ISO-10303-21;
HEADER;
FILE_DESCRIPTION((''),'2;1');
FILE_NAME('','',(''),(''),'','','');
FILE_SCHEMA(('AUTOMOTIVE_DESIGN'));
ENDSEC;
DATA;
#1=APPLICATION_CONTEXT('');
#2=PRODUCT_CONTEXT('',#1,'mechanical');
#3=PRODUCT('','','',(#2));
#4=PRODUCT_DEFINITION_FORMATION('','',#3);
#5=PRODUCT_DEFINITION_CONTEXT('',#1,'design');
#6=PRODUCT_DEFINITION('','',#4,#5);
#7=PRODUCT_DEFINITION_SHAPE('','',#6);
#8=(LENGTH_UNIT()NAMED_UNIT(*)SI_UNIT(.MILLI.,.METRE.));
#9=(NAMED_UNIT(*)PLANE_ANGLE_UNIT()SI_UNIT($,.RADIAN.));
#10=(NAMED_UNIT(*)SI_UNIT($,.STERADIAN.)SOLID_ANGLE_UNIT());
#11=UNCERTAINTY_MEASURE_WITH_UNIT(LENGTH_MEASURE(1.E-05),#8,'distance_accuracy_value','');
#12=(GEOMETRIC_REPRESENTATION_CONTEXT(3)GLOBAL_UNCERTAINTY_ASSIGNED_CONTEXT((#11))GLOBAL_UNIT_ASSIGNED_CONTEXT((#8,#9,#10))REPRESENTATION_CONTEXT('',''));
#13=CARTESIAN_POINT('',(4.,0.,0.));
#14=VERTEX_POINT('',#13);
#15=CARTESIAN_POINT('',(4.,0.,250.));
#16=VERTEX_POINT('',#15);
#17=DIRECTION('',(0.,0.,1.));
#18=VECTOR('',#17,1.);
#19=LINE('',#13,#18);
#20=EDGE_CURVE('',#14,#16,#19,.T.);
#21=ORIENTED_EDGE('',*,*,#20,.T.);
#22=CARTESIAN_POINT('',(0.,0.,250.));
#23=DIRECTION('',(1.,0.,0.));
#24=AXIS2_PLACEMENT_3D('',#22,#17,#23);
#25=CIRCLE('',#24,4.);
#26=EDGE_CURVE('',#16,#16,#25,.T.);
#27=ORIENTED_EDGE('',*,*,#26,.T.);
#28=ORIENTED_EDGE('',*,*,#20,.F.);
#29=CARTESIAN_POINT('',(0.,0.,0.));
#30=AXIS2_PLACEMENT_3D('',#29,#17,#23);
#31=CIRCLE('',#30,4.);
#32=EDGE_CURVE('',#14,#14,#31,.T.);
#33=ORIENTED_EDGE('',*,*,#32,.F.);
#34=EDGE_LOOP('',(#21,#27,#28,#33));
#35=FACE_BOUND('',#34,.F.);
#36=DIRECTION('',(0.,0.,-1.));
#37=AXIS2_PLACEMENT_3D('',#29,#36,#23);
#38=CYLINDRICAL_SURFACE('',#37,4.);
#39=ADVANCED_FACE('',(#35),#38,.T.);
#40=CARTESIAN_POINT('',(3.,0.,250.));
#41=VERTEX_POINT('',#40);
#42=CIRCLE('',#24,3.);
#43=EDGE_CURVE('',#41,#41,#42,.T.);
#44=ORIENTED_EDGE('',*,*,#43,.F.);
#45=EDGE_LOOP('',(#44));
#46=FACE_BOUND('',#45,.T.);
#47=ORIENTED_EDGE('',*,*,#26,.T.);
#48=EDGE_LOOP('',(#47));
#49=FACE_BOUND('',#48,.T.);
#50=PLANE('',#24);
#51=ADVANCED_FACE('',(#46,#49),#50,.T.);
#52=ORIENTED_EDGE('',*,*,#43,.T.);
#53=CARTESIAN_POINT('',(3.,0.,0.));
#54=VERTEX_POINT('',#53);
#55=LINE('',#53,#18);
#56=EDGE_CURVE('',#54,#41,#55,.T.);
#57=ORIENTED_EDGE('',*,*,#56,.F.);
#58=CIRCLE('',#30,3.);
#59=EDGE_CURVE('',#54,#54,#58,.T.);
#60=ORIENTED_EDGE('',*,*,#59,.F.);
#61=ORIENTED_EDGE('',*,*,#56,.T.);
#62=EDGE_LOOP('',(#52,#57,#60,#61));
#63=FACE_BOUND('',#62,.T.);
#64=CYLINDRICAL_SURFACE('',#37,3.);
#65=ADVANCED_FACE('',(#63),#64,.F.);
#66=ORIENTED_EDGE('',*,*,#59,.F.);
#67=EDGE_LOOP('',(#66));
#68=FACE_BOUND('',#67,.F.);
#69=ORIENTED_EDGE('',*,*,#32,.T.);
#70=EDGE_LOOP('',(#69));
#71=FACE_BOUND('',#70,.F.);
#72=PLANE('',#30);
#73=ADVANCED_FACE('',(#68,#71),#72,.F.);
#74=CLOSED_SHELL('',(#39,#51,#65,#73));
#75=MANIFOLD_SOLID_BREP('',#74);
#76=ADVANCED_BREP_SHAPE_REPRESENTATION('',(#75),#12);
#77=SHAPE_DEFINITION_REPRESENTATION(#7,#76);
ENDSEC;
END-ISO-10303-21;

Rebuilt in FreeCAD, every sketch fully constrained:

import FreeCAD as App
import Part
import Sketcher
from FreeCAD import Vector

doc = App.newDocument("Part")
body = doc.addObject("PartDesign::Body", "Body")

sketch1 = body.newObject("Sketcher::SketchObject", "Sketch")
sketch1.AttachmentSupport = (doc.getObject("XY_Plane"), [""])
sketch1.MapMode = "FlatFace"
sketch1.addGeometry([
    Part.Circle(Vector(0, 0, 0), Vector(0, 0, 1), 4),
    Part.Circle(Vector(0, 0, 0), Vector(0, 0, 1), 3),
], False)
sketch1.addConstraint([
    Sketcher.Constraint("Coincident", 0, 3, -1, 1),
    Sketcher.Constraint("Coincident", 1, 3, -1, 1),
    Sketcher.Constraint("Diameter", 0, 8.0),
    Sketcher.Constraint("Diameter", 1, 6.0),
])
pad1 = body.newObject("PartDesign::Pad", "Pad")
pad1.Profile = sketch1
pad1.Length = 250

doc.recompute()
